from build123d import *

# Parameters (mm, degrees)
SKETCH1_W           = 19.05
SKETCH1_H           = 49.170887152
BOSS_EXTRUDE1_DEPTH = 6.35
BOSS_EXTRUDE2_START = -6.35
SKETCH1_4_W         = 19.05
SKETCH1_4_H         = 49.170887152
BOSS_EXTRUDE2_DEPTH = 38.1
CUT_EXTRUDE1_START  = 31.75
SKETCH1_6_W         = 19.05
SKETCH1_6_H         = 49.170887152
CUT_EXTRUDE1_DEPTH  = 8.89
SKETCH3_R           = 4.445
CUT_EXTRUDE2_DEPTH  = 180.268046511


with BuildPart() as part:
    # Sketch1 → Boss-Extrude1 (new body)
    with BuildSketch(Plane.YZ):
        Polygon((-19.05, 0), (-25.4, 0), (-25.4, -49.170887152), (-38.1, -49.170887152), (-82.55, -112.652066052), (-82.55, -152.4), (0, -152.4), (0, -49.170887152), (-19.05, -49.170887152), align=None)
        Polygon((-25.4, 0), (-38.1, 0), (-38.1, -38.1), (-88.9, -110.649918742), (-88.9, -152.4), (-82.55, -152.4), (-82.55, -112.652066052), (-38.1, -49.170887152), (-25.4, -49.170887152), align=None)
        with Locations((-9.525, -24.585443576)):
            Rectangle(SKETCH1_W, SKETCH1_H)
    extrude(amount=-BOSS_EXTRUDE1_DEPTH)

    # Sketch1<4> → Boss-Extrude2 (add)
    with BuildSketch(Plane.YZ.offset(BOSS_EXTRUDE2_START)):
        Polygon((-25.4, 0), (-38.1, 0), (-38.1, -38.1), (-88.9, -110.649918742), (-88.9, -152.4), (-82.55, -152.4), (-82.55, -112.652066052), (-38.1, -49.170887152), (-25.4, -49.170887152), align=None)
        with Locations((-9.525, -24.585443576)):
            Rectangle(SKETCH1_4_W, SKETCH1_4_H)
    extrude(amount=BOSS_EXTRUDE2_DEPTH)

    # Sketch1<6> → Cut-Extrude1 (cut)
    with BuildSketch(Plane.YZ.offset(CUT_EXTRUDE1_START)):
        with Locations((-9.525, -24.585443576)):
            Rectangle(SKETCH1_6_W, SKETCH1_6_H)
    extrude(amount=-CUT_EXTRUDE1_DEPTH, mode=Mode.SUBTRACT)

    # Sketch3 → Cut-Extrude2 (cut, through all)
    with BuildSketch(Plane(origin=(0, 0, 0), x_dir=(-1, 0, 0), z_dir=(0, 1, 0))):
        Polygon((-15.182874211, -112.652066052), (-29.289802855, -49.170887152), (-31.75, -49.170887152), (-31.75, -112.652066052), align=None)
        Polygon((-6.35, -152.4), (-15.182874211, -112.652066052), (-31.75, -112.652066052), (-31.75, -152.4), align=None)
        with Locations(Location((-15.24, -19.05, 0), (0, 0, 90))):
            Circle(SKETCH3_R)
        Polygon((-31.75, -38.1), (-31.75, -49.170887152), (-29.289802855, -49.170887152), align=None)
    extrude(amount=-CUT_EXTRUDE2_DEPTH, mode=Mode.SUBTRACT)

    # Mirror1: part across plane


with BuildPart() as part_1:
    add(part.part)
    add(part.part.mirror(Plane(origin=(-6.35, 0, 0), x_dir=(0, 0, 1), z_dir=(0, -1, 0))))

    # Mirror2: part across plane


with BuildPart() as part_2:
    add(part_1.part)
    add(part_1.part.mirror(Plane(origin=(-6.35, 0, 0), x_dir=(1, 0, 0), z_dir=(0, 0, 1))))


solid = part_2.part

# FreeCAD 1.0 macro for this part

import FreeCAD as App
import Part
import Sketcher
from FreeCAD import Vector
Q = App.Units.Quantity


def add_polygon(sketch, points):
    """Adds a closed chain of lines whose ends are joined by coincident constraints."""
    first, n = sketch.GeometryCount, len(points)
    for a, b in zip(points, points[1:] + points[:1]):
        sketch.addGeometry(Part.LineSegment(App.Vector(*a, 0), App.Vector(*b, 0)), False)
    for i in range(n):
        sketch.addConstraint(Sketcher.Constraint("Coincident", first + i, 2, first + (i + 1) % n, 1))

doc = App.newDocument("Part")
params = doc.addObject("Spreadsheet::Sheet", "Params")
for row, (alias, value) in enumerate([
    ("sketch1_height", "6 in"),
    ("sketch1_width", "3.5 in"),
    ("sketch1_width2", "1.5 in"),
    ("pad1_length", "0.25 in"),
    ("sketch2_width", "0.5 in"),
    ("sketch2_height", "1.5 in"),
    ("sketch2_width2", "0.25 in"),
    ("sketch2_width3", "0.75 in"),
    ("pad2_length", "1.5 in"),
    ("sketch3_width", "0.75 in"),
    ("pocket1_length", "0.35 in"),
    ("sketch4_diameter", "0.35 in"),
    ("sketch4_width", "1 in"),
    ("sketch4_height", "4.5 in"),
], start=1):
    params.set(f"A{row}", alias)
    params.set(f"B{row}", "=" + value)
    params.setAlias(f"B{row}", alias)

body = doc.addObject("PartDesign::Body", "Body")

sketch1 = body.newObject("Sketcher::SketchObject", "Sketch")
sketch1.AttachmentSupport = (doc.getObject("YZ_Plane"), [""])
sketch1.MapMode = "FlatFace"
add_polygon(sketch1, [(-38, 0), (-38, -38), (-89, -111), (-89, -152), (0, -152), (0, 0)])
sketch1.addConstraint([
    Sketcher.Constraint("Vertical", 0),
    Sketcher.Constraint("Vertical", 2),
    Sketcher.Constraint("Horizontal", 3),
    Sketcher.Constraint("Vertical", 4),
    Sketcher.Constraint("Horizontal", 5),
    Sketcher.Constraint("Coincident", 4, 2, -1, 1),
    Sketcher.Constraint("Equal", 5, 0),
    Sketcher.Constraint("DistanceY", 4, 1, 4, 2, Q("6 in")),
    Sketcher.Constraint("DistanceX", 3, 1, 3, 2, Q("3.5 in")),
    Sketcher.Constraint("DistanceX", 5, 2, 5, 1, Q("1.5 in")),
    Sketcher.Constraint("Angle", 1, Q("-125 deg")),
])
sketch1.setExpression("Constraints[13]", "Params.sketch1_height")
sketch1.setExpression("Constraints[14]", "Params.sketch1_width")
sketch1.setExpression("Constraints[15]", "Params.sketch1_width2")
pad1 = body.newObject("PartDesign::Pad", "Pad")
pad1.Profile = sketch1
pad1.setExpression("Length", "Params.pad1_length")
pad1.Reversed = True

sketch2 = body.newObject("Sketcher::SketchObject", "Sketch001")
sketch2.AttachmentSupport = (doc.getObject("YZ_Plane"), [""])
sketch2.MapMode = "FlatFace"
sketch2.AttachmentOffset = App.Placement(Vector(0, 0, -0.25 * 25.4), App.Rotation())
add_polygon(sketch2, [(-25, 0), (-38, 0), (-38, -38), (-89, -111), (-89, -152), (-83, -152), (-83, -113), (-38, -49), (-25, -49)])
add_polygon(sketch2, [(-19, 0), (-19, -49), (0, -49), (0, 0)])
sketch2.addConstraint([
    Sketcher.Constraint("Horizontal", 0),
    Sketcher.Constraint("Vertical", 1),
    Sketcher.Constraint("Vertical", 3),
    Sketcher.Constraint("Horizontal", 4),
    Sketcher.Constraint("Vertical", 5),
    Sketcher.Constraint("Horizontal", 7),
    Sketcher.Constraint("Vertical", 8),
    Sketcher.Constraint("Vertical", 9),
    Sketcher.Constraint("Horizontal", 10),
    Sketcher.Constraint("Vertical", 11),
    Sketcher.Constraint("Horizontal", 12),
    Sketcher.Constraint("Coincident", 11, 2, -1, 1),
    Sketcher.Constraint("PointOnObject", 0, 2, -1),
    Sketcher.Constraint("Parallel", 2, 6),
    Sketcher.Constraint("Horizontal", 7, 2, 9, 2),
    Sketcher.Constraint("Vertical", 1, 2, 6, 2),
    Sketcher.Constraint("DistanceX", 0, 2, 0, 1, Q("0.5 in")),
    Sketcher.Constraint("DistanceY", 1, 2, 1, 1, Q("1.5 in")),
    Sketcher.Constraint("DistanceY", 3, 2, -1, 1, Q("6 in")),
    Sketcher.Constraint("DistanceX", 7, 2, -1, 1, Q("1 in")),
    Sketcher.Constraint("Angle", 2, Q("-125 deg")),
    Sketcher.Constraint("DistanceX", 2, 2, 1, 2, Q("2 in")),
    Sketcher.Constraint("DistanceX", 4, 1, 4, 2, Q("0.25 in")),
    Sketcher.Constraint("DistanceX", 10, 1, 10, 2, Q("0.75 in")),
    Sketcher.Constraint("DistanceY", 5, 1, 5, 2, 39.747934),
])
sketch2.setExpression("Constraints[29]", "Params.sketch2_width")
sketch2.setExpression("Constraints[30]", "Params.sketch2_height")
sketch2.setExpression("Constraints[35]", "Params.sketch2_width2")
sketch2.setExpression("Constraints[36]", "Params.sketch2_width3")
pad2 = body.newObject("PartDesign::Pad", "Pad001")
pad2.Profile = sketch2
pad2.setExpression("Length", "Params.pad2_length")

sketch3 = body.newObject("Sketcher::SketchObject", "Sketch002")
sketch3.AttachmentSupport = (doc.getObject("YZ_Plane"), [""])
sketch3.MapMode = "FlatFace"
sketch3.AttachmentOffset = App.Placement(Vector(0, 0, 1.25 * 25.4), App.Rotation())
add_polygon(sketch3, [(-19, 0), (-19, -49), (0, -49), (0, 0)])
sketch3.addConstraint([
    Sketcher.Constraint("Vertical", 0),
    Sketcher.Constraint("Horizontal", 1),
    Sketcher.Constraint("Vertical", 2),
    Sketcher.Constraint("Horizontal", 3),
    Sketcher.Constraint("Coincident", 2, 2, -1, 1),
    Sketcher.Constraint("DistanceX", 1, 1, 1, 2, Q("0.75 in")),
    Sketcher.Constraint("DistanceY", 0, 2, 0, 1, 49.170887),
])
sketch3.setExpression("Constraints[9]", "Params.sketch3_width")
pocket1 = body.newObject("PartDesign::Pocket", "Pocket")
pocket1.Profile = sketch3
pocket1.setExpression("Length", "Params.pocket1_length")

sketch4 = body.newObject("Sketcher::SketchObject", "Sketch003")
sketch4.AttachmentSupport = (doc.getObject("XZ_Plane"), [""])
sketch4.MapMode = "FlatFace"
add_polygon(sketch4, [(15.2, -112.7), (29.3, -49.2), (31.8, -38.1), (31.8, -152.4), (6.3, -152.4)])
sketch4.addGeometry(Part.Circle(Vector(15.2, -19.1, 0), Vector(0, 0, 1), 4.4), False)
sketch4.addConstraint([
    Sketcher.Constraint("Vertical", 2),
    Sketcher.Constraint("Horizontal", 3),
    Sketcher.Constraint("Parallel", 0, 1),
    Sketcher.Constraint("Parallel", 1, 4),
    Sketcher.Constraint("Diameter", 5, Q("0.35 in")),
    Sketcher.Constraint("DistanceX", 3, 2, 3, 1, Q("1 in")),
    Sketcher.Constraint("DistanceY", 2, 2, 2, 1, Q("4.5 in")),
    Sketcher.Constraint("DistanceY", 2, 2, -1, 1, Q("6 in")),
    Sketcher.Constraint("DistanceX", -1, 1, 5, 3, Q("0.6 in")),
    Sketcher.Constraint("DistanceY", 5, 3, -1, 1, Q("0.75 in")),
    Sketcher.Constraint("DistanceX", -1, 1, 1, 2, Q("1.25 in")),
    Sketcher.Constraint("Distance", 1, 11.340948),
    Sketcher.Constraint("Distance", 4, 40.717538),
])
sketch4.setExpression("Constraints[9]", "Params.sketch4_diameter")
sketch4.setExpression("Constraints[10]", "Params.sketch4_width")
sketch4.setExpression("Constraints[11]", "Params.sketch4_height")
pocket2 = body.newObject("PartDesign::Pocket", "Pocket001")
pocket2.Profile = sketch4
pocket2.Type = "ThroughAll"
pocket2.Reversed = True
body2 = doc.addObject("PartDesign::Body", "Body001")
doc.recompute()

body2.BaseFeature = body
doc.recompute()

mirroring = doc.addObject("Part::Mirroring", "Mirroring")
mirroring.Source = body
mirroring.Base = Vector(-6.35, 0, 0)
mirroring.Normal = Vector(0, -1, 0)
body3 = doc.addObject("PartDesign::Body", "Body002")
body3.BaseFeature = mirroring
boolean = body2.newObject("PartDesign::Boolean", "Boolean")
boolean.Type = "Fuse"
boolean.addObjects([body3])
doc.recompute()
body4 = doc.addObject("PartDesign::Body", "Body003")
doc.recompute()

body4.BaseFeature = body2
doc.recompute()

mirroring2 = doc.addObject("Part::Mirroring", "Mirroring001")
mirroring2.Source = body2
mirroring2.Base = Vector(-6.35, 0, 0)
mirroring2.Normal = Vector(0, 0, 1)
body5 = doc.addObject("PartDesign::Body", "Body004")
body5.BaseFeature = mirroring2
boolean2 = body4.newObject("PartDesign::Boolean", "Boolean001")
boolean2.Type = "Fuse"
boolean2.addObjects([body5])
doc.recompute()
mirroring.Visibility = False
mirroring2.Visibility = False

doc.recompute()
